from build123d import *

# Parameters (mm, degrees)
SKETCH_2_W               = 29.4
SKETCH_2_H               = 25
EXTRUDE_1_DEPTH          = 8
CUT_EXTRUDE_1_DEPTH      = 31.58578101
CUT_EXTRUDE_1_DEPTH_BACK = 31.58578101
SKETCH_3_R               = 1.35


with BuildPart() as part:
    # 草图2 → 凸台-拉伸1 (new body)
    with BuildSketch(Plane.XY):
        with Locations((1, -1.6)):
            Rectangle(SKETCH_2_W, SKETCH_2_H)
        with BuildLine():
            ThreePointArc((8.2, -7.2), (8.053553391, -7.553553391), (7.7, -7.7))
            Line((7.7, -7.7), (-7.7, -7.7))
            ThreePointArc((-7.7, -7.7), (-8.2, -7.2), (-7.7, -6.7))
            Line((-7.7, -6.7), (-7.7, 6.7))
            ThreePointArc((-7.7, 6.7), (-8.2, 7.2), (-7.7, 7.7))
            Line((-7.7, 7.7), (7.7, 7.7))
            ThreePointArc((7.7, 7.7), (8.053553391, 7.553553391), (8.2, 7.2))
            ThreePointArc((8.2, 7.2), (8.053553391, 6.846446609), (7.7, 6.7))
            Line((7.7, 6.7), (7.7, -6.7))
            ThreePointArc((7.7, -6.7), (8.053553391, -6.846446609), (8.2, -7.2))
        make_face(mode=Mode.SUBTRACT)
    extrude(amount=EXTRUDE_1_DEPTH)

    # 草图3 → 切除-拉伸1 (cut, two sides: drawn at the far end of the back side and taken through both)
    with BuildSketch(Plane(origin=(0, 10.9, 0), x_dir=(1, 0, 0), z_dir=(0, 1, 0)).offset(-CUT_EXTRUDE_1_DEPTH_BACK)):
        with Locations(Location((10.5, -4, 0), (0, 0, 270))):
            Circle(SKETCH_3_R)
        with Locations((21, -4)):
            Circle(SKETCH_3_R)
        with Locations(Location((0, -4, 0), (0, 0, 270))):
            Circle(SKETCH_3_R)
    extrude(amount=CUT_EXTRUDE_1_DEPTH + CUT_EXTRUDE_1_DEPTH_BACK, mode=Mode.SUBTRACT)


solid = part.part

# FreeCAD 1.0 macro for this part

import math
import FreeCAD as App
import Part
import Sketcher
from FreeCAD import Vector
Q = App.Units.Quantity


def add_polygon(sketch, points):
    """Adds a closed chain of lines whose ends are joined by coincident constraints."""
    first, n = sketch.GeometryCount, len(points)
    for a, b in zip(points, points[1:] + points[:1]):
        sketch.addGeometry(Part.LineSegment(App.Vector(*a, 0), App.Vector(*b, 0)), False)
    for i in range(n):
        sketch.addConstraint(Sketcher.Constraint("Coincident", first + i, 2, first + (i + 1) % n, 1))

doc = App.newDocument("Part")
body = doc.addObject("PartDesign::Body", "Body")

# Sketch on XY plane
sketch1 = doc.addObject("Sketcher::SketchObject", "Sketch")
body.addObject(sketch1)
sketch1.AttachmentSupport = (doc.XY_Plane, [""])
sketch1.MapMode = "FlatFace"
add_polygon(sketch1, [(-13.7, 10.9), (-13.7, -14.1), (15.7, -14.1), (15.7, 10.9)])  # lines 0-3
sketch1.addGeometry(Part.ArcOfCircle(Part.Circle(Vector(7.7, -7.2, 0), Vector(0, 0, 1), 0.5), math.radians(0), math.radians(90)), False)  # 4
sketch1.addGeometry(Part.ArcOfCircle(Part.Circle(Vector(7.7, -7.2, 0), Vector(0, 0, 1), 0.5), math.radians(-90), math.radians(0)), False)  # 5
sketch1.addGeometry(Part.LineSegment(Vector(7.7, -7.7, 0), Vector(-7.7, -7.7, 0)), False)  # 6
sketch1.addGeometry(Part.ArcOfCircle(Part.Circle(Vector(-7.7, -7.2, 0), Vector(0, 0, 1), 0.5), math.radians(90), math.radians(270)), False)  # 7
sketch1.addGeometry(Part.LineSegment(Vector(-7.7, -6.7, 0), Vector(-7.7, 6.7, 0)), False)  # 8
sketch1.addGeometry(Part.ArcOfCircle(Part.Circle(Vector(-7.7, 7.2, 0), Vector(0, 0, 1), 0.5), math.radians(90), math.radians(270)), False)  # 9
sketch1.addGeometry(Part.LineSegment(Vector(-7.7, 7.7, 0), Vector(7.7, 7.7, 0)), False)  # 10
sketch1.addGeometry(Part.ArcOfCircle(Part.Circle(Vector(7.7, 7.2, 0), Vector(0, 0, 1), 0.5), math.radians(0), math.radians(90)), False)  # 11
sketch1.addGeometry(Part.ArcOfCircle(Part.Circle(Vector(7.7, 7.2, 0), Vector(0, 0, 1), 0.5), math.radians(-90), math.radians(0)), False)  # 12
sketch1.addGeometry(Part.LineSegment(Vector(7.7, 6.7, 0), Vector(7.7, -6.7, 0)), False)  # 13
sketch1.addConstraint([
    Sketcher.Constraint("Tangent", 4, 1, 5, 2),
    Sketcher.Constraint("Tangent", 5, 1, 6, 1),
    Sketcher.Constraint("Tangent", 6, 2, 7, 2),
    Sketcher.Constraint("Coincident", 7, 1, 8, 1),
    Sketcher.Constraint("Coincident", 8, 2, 9, 2),
    Sketcher.Constraint("Tangent", 9, 1, 10, 1),
    Sketcher.Constraint("Tangent", 10, 2, 11, 2),
    Sketcher.Constraint("Tangent", 11, 1, 12, 2),
    Sketcher.Constraint("Coincident", 12, 1, 13, 1),
    Sketcher.Constraint("Coincident", 13, 2, 4, 2),
    Sketcher.Constraint("Vertical", 0),
    Sketcher.Constraint("Horizontal", 1),
    Sketcher.Constraint("Vertical", 2),
    Sketcher.Constraint("Horizontal", 3),
    Sketcher.Constraint("Horizontal", 6),
    Sketcher.Constraint("Vertical", 8),
    Sketcher.Constraint("Horizontal", 10),
    Sketcher.Constraint("Vertical", 13),
    Sketcher.Constraint("Equal", 4, 5),
    Sketcher.Constraint("Equal", 5, 7),
    Sketcher.Constraint("Equal", 7, 9),
    Sketcher.Constraint("Equal", 9, 11),
    Sketcher.Constraint("Equal", 11, 12),
    Sketcher.Constraint("Symmetric", 4, 3, 9, 3, -1, 1),
    Sketcher.Constraint("Symmetric", 4, 1, 11, 1, -1),
    Sketcher.Constraint("Horizontal", 7, 3, 4, 1),
    Sketcher.Constraint("Vertical", 7, 3, 9, 3),
    Sketcher.Constraint("Vertical", 6, 2, 7, 1),
    Sketcher.Constraint("Vertical", 10, 2, 12, 1),
    Sketcher.Constraint("Radius", 4, Q("0.5 mm")),
    Sketcher.Constraint("DistanceY", 0, 2, 0, 1, Q("25 mm")),
    Sketcher.Constraint("DistanceX", 1, 1, 1, 2, Q("29.4 mm")),
    Sketcher.Constraint("DistanceX", 6, 2, 6, 1, Q("15.4 mm")),
    Sketcher.Constraint("DistanceY", 8, 1, 8, 2, Q("13.4 mm")),
    Sketcher.Constraint("DistanceX", 0, 2, 7, 3, Q("6 mm")),
    Sketcher.Constraint("DistanceY", 0, 2, -1, 1, Q("14.1 mm")),
])
pad1 = doc.addObject("PartDesign::Pad", "Pad")
body.addObject(pad1)
pad1.Profile = sketch1
pad1.Length = 8

# Sketch on XZ plane
sketch2 = doc.addObject("Sketcher::SketchObject", "Sketch001")
body.addObject(sketch2)
sketch2.AttachmentSupport = (doc.XZ_Plane, [""])
sketch2.MapMode = "FlatFace"
sketch2.AttachmentOffset = App.Placement(Vector(0, 0, -10.9), App.Rotation())
sketch2.addGeometry([
    Part.Circle(Vector(10.5, 4, 0), Vector(0, 0, 1), 1.4),
    Part.Circle(Vector(21, 4, 0), Vector(0, 0, 1), 1.4),
    Part.Circle(Vector(0, 4, 0), Vector(0, 0, 1), 1.4),
], False)
sketch2.addConstraint([
    Sketcher.Constraint("Equal", 0, 1),
    Sketcher.Constraint("Equal", 1, 2),
    Sketcher.Constraint("PointOnObject", 2, 3, -2),
    Sketcher.Constraint("Horizontal", 0, 3, 1, 3),
    Sketcher.Constraint("Horizontal", 1, 3, 2, 3),
    Sketcher.Constraint("Diameter", 0, Q("2.7 mm")),
    Sketcher.Constraint("DistanceY", -1, 1, 0, 3, Q("4 mm")),
    Sketcher.Constraint("DistanceX", -1, 1, 1, 3, Q("21 mm")),
    Sketcher.Constraint("DistanceX", -1, 1, 0, 3, Q("10.5 mm")),
])
pocket1 = doc.addObject("PartDesign::Pocket", "Pocket")
body.addObject(pocket1)
pocket1.Profile = sketch2
pocket1.Type = "ThroughAll"
pocket1.Midplane = True

doc.recompute()
